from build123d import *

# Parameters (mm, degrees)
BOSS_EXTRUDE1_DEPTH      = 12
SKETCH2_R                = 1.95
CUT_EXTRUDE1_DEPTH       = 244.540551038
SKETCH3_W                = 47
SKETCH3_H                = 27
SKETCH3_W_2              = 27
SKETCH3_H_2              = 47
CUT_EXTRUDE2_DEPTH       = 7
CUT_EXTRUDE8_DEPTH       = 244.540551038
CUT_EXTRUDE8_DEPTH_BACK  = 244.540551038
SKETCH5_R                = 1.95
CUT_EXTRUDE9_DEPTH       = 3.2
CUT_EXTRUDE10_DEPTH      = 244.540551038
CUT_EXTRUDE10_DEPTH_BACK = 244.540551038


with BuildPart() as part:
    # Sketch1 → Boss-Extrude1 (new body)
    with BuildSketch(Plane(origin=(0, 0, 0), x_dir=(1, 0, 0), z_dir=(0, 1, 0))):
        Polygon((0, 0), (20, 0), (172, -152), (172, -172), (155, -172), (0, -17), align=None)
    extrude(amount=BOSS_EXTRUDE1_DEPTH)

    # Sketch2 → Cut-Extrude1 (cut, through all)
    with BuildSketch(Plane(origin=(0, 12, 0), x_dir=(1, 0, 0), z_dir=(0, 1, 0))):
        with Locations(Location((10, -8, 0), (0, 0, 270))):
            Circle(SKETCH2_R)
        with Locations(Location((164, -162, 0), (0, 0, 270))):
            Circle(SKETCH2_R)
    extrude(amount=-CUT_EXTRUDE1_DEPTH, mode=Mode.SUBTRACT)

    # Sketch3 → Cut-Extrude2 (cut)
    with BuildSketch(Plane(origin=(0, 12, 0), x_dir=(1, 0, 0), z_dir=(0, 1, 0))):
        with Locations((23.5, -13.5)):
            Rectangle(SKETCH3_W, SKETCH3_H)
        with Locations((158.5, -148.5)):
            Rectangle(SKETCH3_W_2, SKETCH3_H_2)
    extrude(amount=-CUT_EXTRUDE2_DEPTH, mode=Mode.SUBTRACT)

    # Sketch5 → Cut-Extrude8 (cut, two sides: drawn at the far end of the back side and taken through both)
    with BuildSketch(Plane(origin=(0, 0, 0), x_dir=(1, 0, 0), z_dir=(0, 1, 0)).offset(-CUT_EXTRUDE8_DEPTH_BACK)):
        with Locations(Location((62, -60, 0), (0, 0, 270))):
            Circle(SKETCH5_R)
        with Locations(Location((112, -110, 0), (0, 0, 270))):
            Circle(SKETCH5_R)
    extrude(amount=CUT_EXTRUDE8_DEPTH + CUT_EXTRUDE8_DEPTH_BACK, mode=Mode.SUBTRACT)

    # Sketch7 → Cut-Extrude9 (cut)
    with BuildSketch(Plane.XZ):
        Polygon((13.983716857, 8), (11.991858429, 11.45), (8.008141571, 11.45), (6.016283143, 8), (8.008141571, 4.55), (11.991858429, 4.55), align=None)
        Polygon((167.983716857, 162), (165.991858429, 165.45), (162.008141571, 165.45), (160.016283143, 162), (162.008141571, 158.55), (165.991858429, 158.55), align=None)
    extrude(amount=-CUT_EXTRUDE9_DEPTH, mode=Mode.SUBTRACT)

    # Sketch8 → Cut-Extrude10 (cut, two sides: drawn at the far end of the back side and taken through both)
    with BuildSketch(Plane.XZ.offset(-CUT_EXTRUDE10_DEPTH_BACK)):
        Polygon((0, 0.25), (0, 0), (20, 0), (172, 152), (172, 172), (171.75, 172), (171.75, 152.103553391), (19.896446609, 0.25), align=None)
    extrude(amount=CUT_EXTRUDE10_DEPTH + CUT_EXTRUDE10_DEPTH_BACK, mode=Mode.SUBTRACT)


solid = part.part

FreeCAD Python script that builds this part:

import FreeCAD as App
import Part
import Sketcher

V = App.Vector
Q = App.Units.Quantity


def add_polygon(sketch, points):
    """Adds a closed chain of lines whose ends are joined by coincident constraints."""
    first, n = sketch.GeometryCount, len(points)
    for a, b in zip(points, points[1:] + points[:1]):
        sketch.addGeometry(Part.LineSegment(App.Vector(*a, 0), App.Vector(*b, 0)), False)
    for i in range(n):
        sketch.addConstraint(Sketcher.Constraint("Coincident", first + i, 2, first + (i + 1) % n, 1))

doc = App.newDocument("Part")
body = doc.addObject("PartDesign::Body", "Body")

# Sketch on XZ plane
sketch1 = doc.addObject("Sketcher::SketchObject", "Sketch")
body.addObject(sketch1)
sketch1.AttachmentSupport = (doc.XZ_Plane, [""])
sketch1.MapMode = "FlatFace"
add_polygon(sketch1, [(20, 0), (0, 0), (0, 17), (155, 172), (172, 172), (172, 152)])  # lines 0-5
sketch1.addConstraint([
    Sketcher.Constraint("Horizontal", 0),
    Sketcher.Constraint("Vertical", 1),
    Sketcher.Constraint("Horizontal", 3),
    Sketcher.Constraint("Vertical", 4),
    Sketcher.Constraint("Coincident", 0, 2, -1, 1),
    Sketcher.Constraint("Parallel", 2, 5),
    Sketcher.Constraint("Equal", 3, 1),
    Sketcher.Constraint("Equal", 0, 4),
    Sketcher.Constraint("DistanceX", 0, 2, 0, 1, 20.0),
    Sketcher.Constraint("DistanceX", 3, 1, 3, 2, 17.0),
    Sketcher.Constraint("DistanceX", -1, 1, 2, 2, 155.0),
])
pad1 = doc.addObject("PartDesign::Pad", "Pad")
body.addObject(pad1)
pad1.Profile = sketch1
pad1.Length = 12
pad1.Reversed = True

# Sketch on XZ plane
sketch2 = doc.addObject("Sketcher::SketchObject", "Sketch001")
body.addObject(sketch2)
sketch2.AttachmentSupport = (doc.XZ_Plane, [""])
sketch2.MapMode = "FlatFace"
sketch2.AttachmentOffset = App.Placement(V(0, 0, -12), App.Rotation())
sketch2.addGeometry([
    Part.Circle(V(10, 8, 0), V(0, 0, 1), 1.9),
    Part.Circle(V(164, 162, 0), V(0, 0, 1), 1.9),
], False)
sketch2.addConstraint([
    Sketcher.Constraint("Equal", 0, 1),
    Sketcher.Constraint("Diameter", 0, 3.9),
    Sketcher.Constraint("DistanceX", -1, 1, 0, 3, 10.0),
    Sketcher.Constraint("DistanceY", -1, 1, 0, 3, 8.0),
    Sketcher.Constraint("DistanceX", -1, 1, 1, 3, 164.0),
    Sketcher.Constraint("DistanceY", -1, 1, 1, 3, 162.0),
])
pocket1 = doc.addObject("PartDesign::Pocket", "Pocket")
body.addObject(pocket1)
pocket1.Profile = sketch2
pocket1.Type = "ThroughAll"
pocket1.Reversed = True

# Sketch on XZ plane
sketch3 = doc.addObject("Sketcher::SketchObject", "Sketch002")
body.addObject(sketch3)
sketch3.AttachmentSupport = (doc.XZ_Plane, [""])
sketch3.MapMode = "FlatFace"
sketch3.AttachmentOffset = App.Placement(V(0, 0, -12), App.Rotation())
add_polygon(sketch3, [(0, 0), (0, 27), (47, 27), (47, 0)])  # lines 0-3
add_polygon(sketch3, [(145, 125), (145, 172), (172, 172), (172, 125)])  # lines 4-7
sketch3.addConstraint([
    Sketcher.Constraint("Vertical", 0),
    Sketcher.Constraint("Horizontal", 1),
    Sketcher.Constraint("Vertical", 2),
    Sketcher.Constraint("Horizontal", 3),
    Sketcher.Constraint("Vertical", 4),
    Sketcher.Constraint("Horizontal", 5),
    Sketcher.Constraint("Vertical", 6),
    Sketcher.Constraint("Horizontal", 7),
    Sketcher.Constraint("Coincident", 3, 2, -1, 1),
    Sketcher.Constraint("Equal", 7, 0),
    Sketcher.Constraint("Equal", 3, 4),
    Sketcher.Constraint("DistanceX", 1, 1, 1, 2, 47.0),
    Sketcher.Constraint("DistanceX", 5, 1, 5, 2, 27.0),
    Sketcher.Constraint("DistanceX", -1, 1, 4, 2, 145.0),
    Sketcher.Constraint("DistanceY", -1, 1, 4, 2, 172.0),
])
pocket2 = doc.addObject("PartDesign::Pocket", "Pocket001")
body.addObject(pocket2)
pocket2.Profile = sketch3
pocket2.Length = 7
pocket2.Reversed = True

# Sketch on XZ plane
sketch4 = doc.addObject("Sketcher::SketchObject", "Sketch003")
body.addObject(sketch4)
sketch4.AttachmentSupport = (doc.XZ_Plane, [""])
sketch4.MapMode = "FlatFace"
sketch4.addGeometry([
    Part.Circle(V(62, 60, 0), V(0, 0, 1), 1.9),
    Part.Circle(V(112, 110, 0), V(0, 0, 1), 1.9),
], False)
sketch4.addConstraint([
    Sketcher.Constraint("Equal", 0, 1),
    Sketcher.Constraint("Diameter", 0, 3.9),
    Sketcher.Constraint("DistanceX", -1, 1, 0, 3, 62.0),
    Sketcher.Constraint("DistanceY", -1, 1, 0, 3, 60.0),
    Sketcher.Constraint("DistanceX", -1, 1, 1, 3, 112.0),
    Sketcher.Constraint("DistanceY", -1, 1, 1, 3, 110.0),
])
pocket3 = doc.addObject("PartDesign::Pocket", "Pocket002")
body.addObject(pocket3)
pocket3.Profile = sketch4
pocket3.Type = "ThroughAll"
pocket3.Midplane = True

# Sketch on XZ plane
sketch5 = doc.addObject("Sketcher::SketchObject", "Sketch004")
body.addObject(sketch5)
sketch5.AttachmentSupport = (doc.XZ_Plane, [""])
sketch5.MapMode = "FlatFace"
add_polygon(sketch5, [(14, 8), (12, 11.4), (8, 11.4), (6, 8), (8, 4.5), (12, 4.5)])  # lines 0-5
add_polygon(sketch5, [(168, 162), (166, 165.4), (162, 165.4), (160, 162), (162, 158.6), (166, 158.6)])  # lines 6-11
sketch5.addConstraint([
    Sketcher.Constraint("Horizontal", 1),
    Sketcher.Constraint("Horizontal", 4),
    Sketcher.Constraint("Horizontal", 7),
    Sketcher.Constraint("Horizontal", 10),
    Sketcher.Constraint("Parallel", 0, 3),
    Sketcher.Constraint("Parallel", 2, 5),
    Sketcher.Constraint("Parallel", 3, 6),
    Sketcher.Constraint("Parallel", 5, 8),
    Sketcher.Constraint("Parallel", 6, 9),
    Sketcher.Constraint("Parallel", 8, 11),
    Sketcher.Constraint("Horizontal", 2, 2, 5, 2),
    Sketcher.Constraint("Horizontal", 8, 2, 11, 2),
    Sketcher.Constraint("Vertical", 1, 2, 3, 2),
    Sketcher.Constraint("Vertical", 0, 2, 4, 2),
    Sketcher.Constraint("Vertical", 7, 2, 9, 2),
    Sketcher.Constraint("Equal", 4, 7),
    Sketcher.Constraint("Equal", 5, 6),
    Sketcher.Constraint("Angle", 0, Q("120 deg")),
    Sketcher.Constraint("DistanceY", -1, 1, 2, 2, 8.0),
    Sketcher.Constraint("DistanceY", -1, 1, 8, 2, 162.0),
    Sketcher.Constraint("DistanceX", 0, 2, 6, 2, 154.0),
    Sketcher.Constraint("DistanceY", 3, 2, 1, 2, 6.9),
    Sketcher.Constraint("DistanceX", 1, 2, 1, 1, 3.983717),
    Sketcher.Constraint("DistanceX", -1, 1, 0, 2, 11.991858),
])
pocket4 = doc.addObject("PartDesign::Pocket", "Pocket003")
body.addObject(pocket4)
pocket4.Profile = sketch5
pocket4.Length = 3.2

# Sketch on XZ plane
sketch6 = doc.addObject("Sketcher::SketchObject", "Sketch005")
body.addObject(sketch6)
sketch6.AttachmentSupport = (doc.XZ_Plane, [""])
sketch6.MapMode = "FlatFace"
add_polygon(sketch6, [(0, 0.25), (0, 0), (20, 0), (172, 152), (172, 172), (171.75, 172), (171.75, 152.1), (19.9, 0.25)])  # lines 0-7
sketch6.addConstraint([
    Sketcher.Constraint("Vertical", 0),
    Sketcher.Constraint("Horizontal", 1),
    Sketcher.Constraint("Vertical", 3),
    Sketcher.Constraint("Horizontal", 4),
    Sketcher.Constraint("Vertical", 5),
    Sketcher.Constraint("Horizontal", 7),
    Sketcher.Constraint("Coincident", 0, 2, -1, 1),
    Sketcher.Constraint("Parallel", 2, 6),
    Sketcher.Constraint("Equal", 4, 0),
    Sketcher.Constraint("Equal", 1, 3),
    Sketcher.Constraint("DistanceX", 1, 1, 1, 2, 20.0),
    Sketcher.Constraint("Angle", 2, Q("45 deg")),
    Sketcher.Constraint("DistanceX", -1, 1, 2, 2, 172.0),
    Sketcher.Constraint("DistanceX", 4, 2, 4, 1, 0.25),
    Sketcher.Constraint("DistanceX", 7, 2, 7, 1, 19.896447),
])
pocket5 = doc.addObject("PartDesign::Pocket", "Pocket004")
body.addObject(pocket5)
pocket5.Profile = sketch6
pocket5.Type = "ThroughAll"
pocket5.Midplane = True

doc.recompute()
